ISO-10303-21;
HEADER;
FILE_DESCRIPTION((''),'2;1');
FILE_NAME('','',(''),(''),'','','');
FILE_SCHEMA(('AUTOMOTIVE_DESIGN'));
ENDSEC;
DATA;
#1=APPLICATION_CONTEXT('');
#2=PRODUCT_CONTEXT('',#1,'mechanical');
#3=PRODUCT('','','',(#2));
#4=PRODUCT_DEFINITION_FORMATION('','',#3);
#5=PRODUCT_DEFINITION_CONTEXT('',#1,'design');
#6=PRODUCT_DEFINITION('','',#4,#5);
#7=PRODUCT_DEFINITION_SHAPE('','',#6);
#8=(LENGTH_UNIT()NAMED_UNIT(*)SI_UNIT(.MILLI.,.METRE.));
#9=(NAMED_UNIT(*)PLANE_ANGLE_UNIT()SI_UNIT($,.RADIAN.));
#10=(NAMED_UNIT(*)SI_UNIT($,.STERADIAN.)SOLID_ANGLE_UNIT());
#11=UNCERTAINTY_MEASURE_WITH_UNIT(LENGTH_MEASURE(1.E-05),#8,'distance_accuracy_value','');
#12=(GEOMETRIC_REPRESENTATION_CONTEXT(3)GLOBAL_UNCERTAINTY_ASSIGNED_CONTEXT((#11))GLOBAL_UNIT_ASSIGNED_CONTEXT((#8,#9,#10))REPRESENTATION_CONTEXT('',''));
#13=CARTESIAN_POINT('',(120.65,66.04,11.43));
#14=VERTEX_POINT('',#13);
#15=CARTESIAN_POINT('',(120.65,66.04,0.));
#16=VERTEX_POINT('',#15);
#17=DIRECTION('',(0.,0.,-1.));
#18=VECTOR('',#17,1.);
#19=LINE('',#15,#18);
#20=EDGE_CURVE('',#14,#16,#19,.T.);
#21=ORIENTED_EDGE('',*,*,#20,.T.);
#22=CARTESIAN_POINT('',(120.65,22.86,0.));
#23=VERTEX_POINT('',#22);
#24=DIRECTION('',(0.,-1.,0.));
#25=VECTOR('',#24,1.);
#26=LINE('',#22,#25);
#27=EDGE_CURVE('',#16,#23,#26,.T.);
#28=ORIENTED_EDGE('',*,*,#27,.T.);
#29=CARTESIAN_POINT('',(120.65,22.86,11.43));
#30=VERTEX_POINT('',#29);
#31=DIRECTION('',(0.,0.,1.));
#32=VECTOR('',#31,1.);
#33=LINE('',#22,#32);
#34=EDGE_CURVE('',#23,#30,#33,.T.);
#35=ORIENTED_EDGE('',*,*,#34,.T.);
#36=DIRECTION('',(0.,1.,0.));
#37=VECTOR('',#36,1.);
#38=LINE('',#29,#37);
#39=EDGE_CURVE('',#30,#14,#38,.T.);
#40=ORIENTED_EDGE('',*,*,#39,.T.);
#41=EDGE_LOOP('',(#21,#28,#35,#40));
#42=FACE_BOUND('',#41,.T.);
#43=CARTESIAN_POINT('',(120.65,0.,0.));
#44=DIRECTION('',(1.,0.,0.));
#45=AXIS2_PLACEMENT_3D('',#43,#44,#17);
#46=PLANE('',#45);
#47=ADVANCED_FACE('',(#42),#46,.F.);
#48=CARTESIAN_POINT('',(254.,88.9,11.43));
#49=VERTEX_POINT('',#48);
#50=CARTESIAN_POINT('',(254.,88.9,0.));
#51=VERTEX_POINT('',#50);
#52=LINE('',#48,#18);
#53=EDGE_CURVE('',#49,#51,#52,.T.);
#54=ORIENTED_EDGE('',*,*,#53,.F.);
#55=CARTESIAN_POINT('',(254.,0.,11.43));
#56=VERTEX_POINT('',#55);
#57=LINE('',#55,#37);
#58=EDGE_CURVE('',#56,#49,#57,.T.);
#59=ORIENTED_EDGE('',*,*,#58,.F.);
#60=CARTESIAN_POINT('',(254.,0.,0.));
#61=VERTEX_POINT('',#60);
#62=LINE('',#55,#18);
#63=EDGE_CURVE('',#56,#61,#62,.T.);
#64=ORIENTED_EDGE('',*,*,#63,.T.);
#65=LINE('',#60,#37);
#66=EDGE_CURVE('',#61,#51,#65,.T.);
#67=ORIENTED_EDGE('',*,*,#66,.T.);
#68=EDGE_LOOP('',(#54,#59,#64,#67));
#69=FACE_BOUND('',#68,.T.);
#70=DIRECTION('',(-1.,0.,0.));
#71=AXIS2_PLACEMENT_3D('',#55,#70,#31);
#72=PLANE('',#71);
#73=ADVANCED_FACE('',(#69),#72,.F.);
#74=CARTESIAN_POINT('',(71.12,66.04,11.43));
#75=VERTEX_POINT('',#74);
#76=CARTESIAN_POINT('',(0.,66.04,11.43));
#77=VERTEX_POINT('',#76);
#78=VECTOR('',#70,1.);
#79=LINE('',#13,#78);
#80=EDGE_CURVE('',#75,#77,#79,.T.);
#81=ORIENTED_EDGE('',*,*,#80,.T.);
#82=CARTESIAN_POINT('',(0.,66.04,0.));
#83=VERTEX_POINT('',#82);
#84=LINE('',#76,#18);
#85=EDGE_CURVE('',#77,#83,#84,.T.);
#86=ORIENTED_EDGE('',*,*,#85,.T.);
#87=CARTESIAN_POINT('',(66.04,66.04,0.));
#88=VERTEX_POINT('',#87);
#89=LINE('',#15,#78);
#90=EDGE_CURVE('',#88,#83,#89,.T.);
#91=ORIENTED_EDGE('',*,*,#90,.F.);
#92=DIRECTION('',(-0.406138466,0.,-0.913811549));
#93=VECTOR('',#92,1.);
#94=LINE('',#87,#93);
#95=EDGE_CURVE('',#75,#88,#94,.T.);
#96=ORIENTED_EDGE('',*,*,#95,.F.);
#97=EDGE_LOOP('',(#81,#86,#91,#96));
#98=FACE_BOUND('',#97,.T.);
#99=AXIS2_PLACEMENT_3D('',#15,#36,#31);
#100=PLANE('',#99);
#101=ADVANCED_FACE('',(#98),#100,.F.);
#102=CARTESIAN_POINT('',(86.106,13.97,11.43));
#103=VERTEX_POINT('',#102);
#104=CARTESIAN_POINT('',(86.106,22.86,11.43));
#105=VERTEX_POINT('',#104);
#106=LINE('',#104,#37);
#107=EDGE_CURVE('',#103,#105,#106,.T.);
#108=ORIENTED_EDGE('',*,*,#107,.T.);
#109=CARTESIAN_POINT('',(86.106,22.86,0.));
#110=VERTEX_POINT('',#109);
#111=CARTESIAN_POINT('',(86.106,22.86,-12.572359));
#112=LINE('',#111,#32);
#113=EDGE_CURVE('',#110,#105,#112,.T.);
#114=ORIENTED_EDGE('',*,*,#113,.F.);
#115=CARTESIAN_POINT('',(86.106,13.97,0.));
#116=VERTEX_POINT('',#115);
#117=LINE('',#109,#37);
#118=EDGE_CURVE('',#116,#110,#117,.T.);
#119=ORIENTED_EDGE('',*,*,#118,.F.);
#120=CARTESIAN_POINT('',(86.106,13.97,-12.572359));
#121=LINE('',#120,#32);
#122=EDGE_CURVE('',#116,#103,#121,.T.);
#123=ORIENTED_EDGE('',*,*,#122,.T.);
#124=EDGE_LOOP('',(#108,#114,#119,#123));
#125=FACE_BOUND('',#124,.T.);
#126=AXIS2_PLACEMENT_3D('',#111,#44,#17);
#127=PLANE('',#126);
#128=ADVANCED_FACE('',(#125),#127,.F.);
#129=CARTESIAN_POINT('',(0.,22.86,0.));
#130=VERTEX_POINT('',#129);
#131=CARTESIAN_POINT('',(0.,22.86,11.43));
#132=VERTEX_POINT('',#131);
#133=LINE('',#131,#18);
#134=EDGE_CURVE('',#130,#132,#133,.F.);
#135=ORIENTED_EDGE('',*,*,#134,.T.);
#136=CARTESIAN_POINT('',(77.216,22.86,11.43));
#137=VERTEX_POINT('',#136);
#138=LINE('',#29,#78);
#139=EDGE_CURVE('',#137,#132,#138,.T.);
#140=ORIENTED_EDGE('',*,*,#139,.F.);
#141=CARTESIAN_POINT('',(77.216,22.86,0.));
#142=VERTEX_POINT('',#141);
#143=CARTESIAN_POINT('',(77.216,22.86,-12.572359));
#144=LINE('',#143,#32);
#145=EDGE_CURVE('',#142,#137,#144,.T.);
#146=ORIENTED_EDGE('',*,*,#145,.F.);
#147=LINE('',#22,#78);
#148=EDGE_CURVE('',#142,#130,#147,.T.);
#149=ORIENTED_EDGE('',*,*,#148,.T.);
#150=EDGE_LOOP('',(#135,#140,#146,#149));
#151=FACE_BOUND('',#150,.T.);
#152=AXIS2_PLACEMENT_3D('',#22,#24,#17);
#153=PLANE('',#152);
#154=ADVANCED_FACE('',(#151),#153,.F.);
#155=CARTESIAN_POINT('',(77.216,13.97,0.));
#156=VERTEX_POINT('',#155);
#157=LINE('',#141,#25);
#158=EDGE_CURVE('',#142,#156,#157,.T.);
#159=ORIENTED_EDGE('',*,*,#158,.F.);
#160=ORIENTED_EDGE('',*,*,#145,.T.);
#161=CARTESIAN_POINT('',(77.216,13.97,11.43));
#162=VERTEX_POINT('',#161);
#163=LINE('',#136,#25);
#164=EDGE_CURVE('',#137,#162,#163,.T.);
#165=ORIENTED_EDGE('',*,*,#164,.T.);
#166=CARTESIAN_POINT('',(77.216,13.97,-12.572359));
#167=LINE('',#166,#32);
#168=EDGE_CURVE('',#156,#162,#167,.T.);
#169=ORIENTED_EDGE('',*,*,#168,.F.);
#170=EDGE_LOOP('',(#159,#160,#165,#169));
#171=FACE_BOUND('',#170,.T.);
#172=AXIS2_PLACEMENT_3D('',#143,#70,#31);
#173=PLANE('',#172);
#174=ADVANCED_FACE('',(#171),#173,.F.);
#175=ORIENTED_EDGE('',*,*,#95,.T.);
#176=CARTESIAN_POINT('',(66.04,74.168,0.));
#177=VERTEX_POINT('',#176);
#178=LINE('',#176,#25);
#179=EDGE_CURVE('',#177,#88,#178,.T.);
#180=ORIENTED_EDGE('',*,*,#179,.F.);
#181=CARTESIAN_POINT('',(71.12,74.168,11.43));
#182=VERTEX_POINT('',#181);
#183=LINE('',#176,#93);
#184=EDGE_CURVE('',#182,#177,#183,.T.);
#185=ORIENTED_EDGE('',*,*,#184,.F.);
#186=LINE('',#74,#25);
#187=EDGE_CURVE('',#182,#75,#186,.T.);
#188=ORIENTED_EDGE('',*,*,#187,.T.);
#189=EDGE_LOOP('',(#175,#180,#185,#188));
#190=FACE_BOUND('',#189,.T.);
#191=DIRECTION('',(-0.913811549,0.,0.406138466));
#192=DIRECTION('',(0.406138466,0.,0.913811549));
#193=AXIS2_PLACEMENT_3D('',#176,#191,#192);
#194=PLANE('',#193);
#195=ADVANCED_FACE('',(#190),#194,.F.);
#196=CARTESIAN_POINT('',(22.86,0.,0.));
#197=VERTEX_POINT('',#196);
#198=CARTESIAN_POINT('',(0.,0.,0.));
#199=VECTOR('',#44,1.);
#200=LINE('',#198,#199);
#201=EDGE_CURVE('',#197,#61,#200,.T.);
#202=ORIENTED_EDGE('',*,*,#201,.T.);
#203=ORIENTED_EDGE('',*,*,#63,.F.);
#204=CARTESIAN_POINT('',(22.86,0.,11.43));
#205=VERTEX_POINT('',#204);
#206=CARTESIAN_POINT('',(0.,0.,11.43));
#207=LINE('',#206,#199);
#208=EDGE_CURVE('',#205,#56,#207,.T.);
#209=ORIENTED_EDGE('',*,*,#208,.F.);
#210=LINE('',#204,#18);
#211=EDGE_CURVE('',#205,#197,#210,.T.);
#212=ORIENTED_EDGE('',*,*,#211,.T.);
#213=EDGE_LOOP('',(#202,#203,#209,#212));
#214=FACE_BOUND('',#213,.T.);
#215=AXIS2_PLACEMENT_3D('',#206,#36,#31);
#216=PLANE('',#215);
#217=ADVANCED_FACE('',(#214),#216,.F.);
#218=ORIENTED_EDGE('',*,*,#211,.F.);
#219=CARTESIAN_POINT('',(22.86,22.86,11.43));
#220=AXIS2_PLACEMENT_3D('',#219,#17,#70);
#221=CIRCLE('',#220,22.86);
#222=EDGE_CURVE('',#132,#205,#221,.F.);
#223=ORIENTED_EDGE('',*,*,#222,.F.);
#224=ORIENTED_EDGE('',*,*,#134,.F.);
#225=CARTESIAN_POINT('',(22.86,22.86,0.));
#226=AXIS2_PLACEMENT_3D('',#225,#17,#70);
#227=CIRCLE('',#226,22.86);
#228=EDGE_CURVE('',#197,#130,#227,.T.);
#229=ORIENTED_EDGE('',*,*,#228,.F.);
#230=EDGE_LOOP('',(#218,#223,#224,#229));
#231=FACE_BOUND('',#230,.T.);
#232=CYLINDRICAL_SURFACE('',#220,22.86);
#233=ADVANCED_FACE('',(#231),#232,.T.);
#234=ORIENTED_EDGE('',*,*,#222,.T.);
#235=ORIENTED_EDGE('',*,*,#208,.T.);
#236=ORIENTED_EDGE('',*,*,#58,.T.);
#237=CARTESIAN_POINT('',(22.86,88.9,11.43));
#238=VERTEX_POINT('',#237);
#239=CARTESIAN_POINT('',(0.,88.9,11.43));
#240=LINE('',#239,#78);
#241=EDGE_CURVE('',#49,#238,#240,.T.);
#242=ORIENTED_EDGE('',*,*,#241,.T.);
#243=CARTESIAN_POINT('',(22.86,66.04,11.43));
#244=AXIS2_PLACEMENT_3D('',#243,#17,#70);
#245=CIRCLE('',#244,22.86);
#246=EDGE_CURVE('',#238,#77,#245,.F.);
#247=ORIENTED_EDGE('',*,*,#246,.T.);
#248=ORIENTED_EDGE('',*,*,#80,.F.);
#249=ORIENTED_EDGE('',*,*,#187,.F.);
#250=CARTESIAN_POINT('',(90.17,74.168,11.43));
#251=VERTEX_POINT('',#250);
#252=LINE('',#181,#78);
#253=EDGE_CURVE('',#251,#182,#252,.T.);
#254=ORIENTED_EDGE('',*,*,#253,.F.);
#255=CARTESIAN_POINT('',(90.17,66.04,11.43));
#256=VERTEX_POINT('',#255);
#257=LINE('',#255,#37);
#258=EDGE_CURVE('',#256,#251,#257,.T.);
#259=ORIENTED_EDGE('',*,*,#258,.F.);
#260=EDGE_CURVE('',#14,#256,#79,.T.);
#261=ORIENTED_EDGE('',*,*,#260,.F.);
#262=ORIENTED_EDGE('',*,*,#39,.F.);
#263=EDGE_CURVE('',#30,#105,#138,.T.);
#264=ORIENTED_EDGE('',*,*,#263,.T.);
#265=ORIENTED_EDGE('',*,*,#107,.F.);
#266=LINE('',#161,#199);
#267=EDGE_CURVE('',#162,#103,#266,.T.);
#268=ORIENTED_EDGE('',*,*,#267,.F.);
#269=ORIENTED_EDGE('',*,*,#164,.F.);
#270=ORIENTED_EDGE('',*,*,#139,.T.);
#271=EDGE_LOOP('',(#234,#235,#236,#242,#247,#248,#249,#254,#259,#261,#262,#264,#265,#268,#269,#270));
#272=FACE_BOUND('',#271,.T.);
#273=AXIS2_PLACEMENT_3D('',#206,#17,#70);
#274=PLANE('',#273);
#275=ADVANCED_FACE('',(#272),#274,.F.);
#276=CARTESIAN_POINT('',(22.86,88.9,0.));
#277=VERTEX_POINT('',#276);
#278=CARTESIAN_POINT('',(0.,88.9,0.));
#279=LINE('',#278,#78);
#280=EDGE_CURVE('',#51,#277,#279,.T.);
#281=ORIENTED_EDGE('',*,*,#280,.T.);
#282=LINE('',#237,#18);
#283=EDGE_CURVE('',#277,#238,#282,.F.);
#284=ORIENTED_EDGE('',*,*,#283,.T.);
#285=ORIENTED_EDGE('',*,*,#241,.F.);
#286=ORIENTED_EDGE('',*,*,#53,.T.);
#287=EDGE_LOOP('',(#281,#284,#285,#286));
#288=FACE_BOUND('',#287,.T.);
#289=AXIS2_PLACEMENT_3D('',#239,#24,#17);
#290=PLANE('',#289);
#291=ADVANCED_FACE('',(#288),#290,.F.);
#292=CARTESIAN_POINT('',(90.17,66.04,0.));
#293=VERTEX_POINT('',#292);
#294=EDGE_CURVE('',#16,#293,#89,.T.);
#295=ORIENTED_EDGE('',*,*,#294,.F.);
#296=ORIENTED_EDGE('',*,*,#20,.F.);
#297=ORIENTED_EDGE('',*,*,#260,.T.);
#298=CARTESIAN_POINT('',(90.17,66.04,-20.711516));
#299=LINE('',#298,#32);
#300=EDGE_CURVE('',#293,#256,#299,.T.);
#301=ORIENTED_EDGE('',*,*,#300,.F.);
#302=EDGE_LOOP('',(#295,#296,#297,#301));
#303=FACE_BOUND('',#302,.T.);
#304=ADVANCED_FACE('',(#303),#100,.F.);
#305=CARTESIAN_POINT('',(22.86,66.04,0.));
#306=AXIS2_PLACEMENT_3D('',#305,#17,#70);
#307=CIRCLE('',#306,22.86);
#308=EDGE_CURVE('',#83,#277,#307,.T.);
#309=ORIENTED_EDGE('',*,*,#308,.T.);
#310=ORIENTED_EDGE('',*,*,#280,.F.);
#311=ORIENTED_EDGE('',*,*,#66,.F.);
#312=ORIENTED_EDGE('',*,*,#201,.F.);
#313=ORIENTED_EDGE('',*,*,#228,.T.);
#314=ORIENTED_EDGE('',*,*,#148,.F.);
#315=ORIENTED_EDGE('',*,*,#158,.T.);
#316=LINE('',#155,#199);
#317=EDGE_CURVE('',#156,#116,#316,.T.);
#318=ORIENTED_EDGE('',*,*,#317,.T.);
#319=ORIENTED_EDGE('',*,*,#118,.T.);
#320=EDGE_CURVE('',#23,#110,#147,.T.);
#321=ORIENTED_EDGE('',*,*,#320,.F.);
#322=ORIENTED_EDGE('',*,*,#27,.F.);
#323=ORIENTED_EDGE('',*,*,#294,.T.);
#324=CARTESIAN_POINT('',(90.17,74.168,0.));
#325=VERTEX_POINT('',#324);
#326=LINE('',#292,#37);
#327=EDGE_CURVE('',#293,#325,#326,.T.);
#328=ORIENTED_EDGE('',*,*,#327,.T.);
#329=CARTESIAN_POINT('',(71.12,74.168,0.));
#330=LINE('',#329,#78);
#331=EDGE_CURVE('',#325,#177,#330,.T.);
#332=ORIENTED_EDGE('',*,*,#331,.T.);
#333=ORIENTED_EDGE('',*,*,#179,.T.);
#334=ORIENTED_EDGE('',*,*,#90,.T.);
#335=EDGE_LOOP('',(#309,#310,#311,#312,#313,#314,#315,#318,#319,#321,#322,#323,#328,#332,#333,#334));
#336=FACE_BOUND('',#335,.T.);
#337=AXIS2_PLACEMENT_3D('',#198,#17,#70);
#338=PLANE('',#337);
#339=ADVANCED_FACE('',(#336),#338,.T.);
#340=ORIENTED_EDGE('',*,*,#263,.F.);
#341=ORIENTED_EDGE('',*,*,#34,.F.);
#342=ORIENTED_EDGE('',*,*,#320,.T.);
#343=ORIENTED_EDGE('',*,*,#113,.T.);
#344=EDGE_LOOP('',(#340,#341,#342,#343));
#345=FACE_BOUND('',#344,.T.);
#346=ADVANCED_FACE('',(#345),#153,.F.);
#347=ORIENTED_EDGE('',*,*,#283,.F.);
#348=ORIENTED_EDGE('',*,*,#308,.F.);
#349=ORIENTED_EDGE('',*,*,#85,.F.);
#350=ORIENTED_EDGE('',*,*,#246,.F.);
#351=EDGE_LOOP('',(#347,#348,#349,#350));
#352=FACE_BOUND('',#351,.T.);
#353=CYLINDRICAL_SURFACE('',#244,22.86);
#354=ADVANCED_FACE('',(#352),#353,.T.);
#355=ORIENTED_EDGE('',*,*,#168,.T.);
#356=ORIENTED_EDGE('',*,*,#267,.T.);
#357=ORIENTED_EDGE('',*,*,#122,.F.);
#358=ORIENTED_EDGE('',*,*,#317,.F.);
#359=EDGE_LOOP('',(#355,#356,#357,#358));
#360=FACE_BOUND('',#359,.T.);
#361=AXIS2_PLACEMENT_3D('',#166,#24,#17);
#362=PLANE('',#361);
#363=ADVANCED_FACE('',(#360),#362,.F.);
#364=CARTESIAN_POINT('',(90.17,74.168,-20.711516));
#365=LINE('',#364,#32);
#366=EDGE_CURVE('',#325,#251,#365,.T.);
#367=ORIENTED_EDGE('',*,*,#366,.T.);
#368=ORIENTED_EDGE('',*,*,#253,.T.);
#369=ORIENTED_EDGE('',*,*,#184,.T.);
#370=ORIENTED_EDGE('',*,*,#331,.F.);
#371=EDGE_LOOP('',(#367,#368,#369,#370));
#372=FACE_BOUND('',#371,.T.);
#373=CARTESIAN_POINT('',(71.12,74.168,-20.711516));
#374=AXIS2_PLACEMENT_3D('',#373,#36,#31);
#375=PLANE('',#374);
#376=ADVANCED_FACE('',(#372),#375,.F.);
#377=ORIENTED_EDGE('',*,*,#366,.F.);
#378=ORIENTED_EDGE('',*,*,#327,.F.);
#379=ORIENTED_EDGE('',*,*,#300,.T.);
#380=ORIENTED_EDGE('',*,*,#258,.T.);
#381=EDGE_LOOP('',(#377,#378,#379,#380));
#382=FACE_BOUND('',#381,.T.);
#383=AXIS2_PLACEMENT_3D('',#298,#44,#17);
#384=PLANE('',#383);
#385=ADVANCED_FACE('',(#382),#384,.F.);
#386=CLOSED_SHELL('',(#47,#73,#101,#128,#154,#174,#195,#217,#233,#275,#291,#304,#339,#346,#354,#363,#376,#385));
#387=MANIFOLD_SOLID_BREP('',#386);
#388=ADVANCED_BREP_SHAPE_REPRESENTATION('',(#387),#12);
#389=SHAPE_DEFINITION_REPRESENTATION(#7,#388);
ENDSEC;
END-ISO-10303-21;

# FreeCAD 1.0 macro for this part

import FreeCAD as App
import Part
import Sketcher
from FreeCAD import Vector
Q = App.Units.Quantity


def edges_at(feature, points):
    """Names of the edges that pass closest to the given points."""
    edges = feature.Shape.Edges
    near = lambda p: min(range(len(edges)), key=lambda i: edges[i].distToShape(Part.Vertex(*p))[0])
    return sorted({f"Edge{near(p) + 1}" for p in points})

doc = App.newDocument("Part")
body = doc.addObject("PartDesign::Body", "Body")

# Sketch on XY plane
sketch1 = doc.addObject("Sketcher::SketchObject", "Sketch")
body.addObject(sketch1)
sketch1.AttachmentSupport = (doc.XY_Plane, [""])
sketch1.MapMode = "FlatFace"
sketch1.addGeometry([
    Part.LineSegment(Vector(0, 88.9, 0), Vector(0, 0, 0)),
    Part.LineSegment(Vector(0, 0, 0), Vector(254, 0, 0)),
    Part.LineSegment(Vector(254, 0, 0), Vector(254, 88.9, 0)),
    Part.LineSegment(Vector(254, 88.9, 0), Vector(0, 88.9, 0)),
], False)
sketch1.addConstraint([
    Sketcher.Constraint("Coincident", 0, 2, 1, 1),
    Sketcher.Constraint("Coincident", 1, 2, 2, 1),
    Sketcher.Constraint("Coincident", 2, 2, 3, 1),
    Sketcher.Constraint("Coincident", 3, 2, 0, 1),
    Sketcher.Constraint("Vertical", 0),
    Sketcher.Constraint("Horizontal", 1),
    Sketcher.Constraint("Vertical", 2),
    Sketcher.Constraint("Horizontal", 3),
    Sketcher.Constraint("Coincident", 0, 2, -1, 1),
    Sketcher.Constraint("DistanceX", 1, 1, 1, 2, Q("10 in")),
    Sketcher.Constraint("DistanceY", 0, 2, 0, 1, Q("3.5 in")),
])
pad1 = doc.addObject("PartDesign::Pad", "Pad")
body.addObject(pad1)
pad1.Profile = sketch1
pad1.Length = Q("0.45 in")
doc.recompute()

fillet = doc.addObject("PartDesign::Fillet", "Fillet")
body.addObject(fillet)
fillet.Base = (pad1, edges_at(pad1, [(0, 88.9, 5.715)]))
fillet.Radius = Q("0.9 in")
doc.recompute()

fillet2 = doc.addObject("PartDesign::Fillet", "Fillet001")
body.addObject(fillet2)
fillet2.Base = (fillet, edges_at(fillet, [(0, 0, 5.715)]))
fillet2.Radius = Q("0.9 in")

# Sketch on YZ plane
sketch2 = doc.addObject("Sketcher::SketchObject", "Sketch001")
body.addObject(sketch2)
sketch2.AttachmentSupport = (doc.YZ_Plane, [""])
sketch2.MapMode = "FlatFace"
sketch2.addGeometry([
    Part.LineSegment(Vector(66.04, 0, 0), Vector(22.86, 0, 0)),
    Part.LineSegment(Vector(22.86, 0, 0), Vector(22.86, 11.43, 0)),
    Part.LineSegment(Vector(22.86, 11.43, 0), Vector(66.04, 11.43, 0)),
    Part.LineSegment(Vector(66.04, 11.43, 0), Vector(66.04, 0, 0)),
], False)
sketch2.addConstraint([
    Sketcher.Constraint("Coincident", 0, 2, 1, 1),
    Sketcher.Constraint("Coincident", 1, 2, 2, 1),
    Sketcher.Constraint("Coincident", 2, 2, 3, 1),
    Sketcher.Constraint("Coincident", 3, 2, 0, 1),
    Sketcher.Constraint("Horizontal", 0),
    Sketcher.Constraint("Vertical", 1),
    Sketcher.Constraint("Horizontal", 2),
    Sketcher.Constraint("Vertical", 3),
    Sketcher.Constraint("PointOnObject", 0, 2, -1),
    Sketcher.Constraint("DistanceX", 0, 2, 0, 1, Q("1.7 in")),
    Sketcher.Constraint("DistanceY", 1, 1, 1, 2, Q("0.45 in")),
    Sketcher.Constraint("DistanceX", -1, 1, 0, 2, Q("0.9 in")),
])
pocket1 = doc.addObject("PartDesign::Pocket", "Pocket")
body.addObject(pocket1)
pocket1.Profile = sketch2
pocket1.Length = Q("4.75 in")
pocket1.Reversed = True

# Sketch on XY plane
sketch3 = doc.addObject("Sketcher::SketchObject", "Sketch002")
body.addObject(sketch3)
sketch3.AttachmentSupport = (doc.XY_Plane, [""])
sketch3.MapMode = "FlatFace"
sketch3.AttachmentOffset = App.Placement(Vector(0, 0, 0.45 * 25.4), App.Rotation())
sketch3.addGeometry([
    Part.LineSegment(Vector(77.216, 22.86, 0), Vector(77.216, 13.97, 0)),
    Part.LineSegment(Vector(77.216, 13.97, 0), Vector(86.106, 13.97, 0)),
    Part.LineSegment(Vector(86.106, 13.97, 0), Vector(86.106, 22.86, 0)),
    Part.LineSegment(Vector(86.106, 22.86, 0), Vector(77.216, 22.86, 0)),
], False)
sketch3.addConstraint([
    Sketcher.Constraint("Coincident", 0, 2, 1, 1),
    Sketcher.Constraint("Coincident", 1, 2, 2, 1),
    Sketcher.Constraint("Coincident", 2, 2, 3, 1),
    Sketcher.Constraint("Coincident", 3, 2, 0, 1),
    Sketcher.Constraint("Vertical", 0),
    Sketcher.Constraint("Horizontal", 1),
    Sketcher.Constraint("Vertical", 2),
    Sketcher.Constraint("Horizontal", 3),
    Sketcher.Constraint("Equal", 3, 0),
    Sketcher.Constraint("DistanceX", 1, 1, 1, 2, Q("0.35 in")),
    Sketcher.Constraint("DistanceY", -1, 1, 2, 2, Q("0.9 in")),
    Sketcher.Constraint("DistanceX", -1, 1, 0, 2, Q("3.04 in")),
])
pocket2 = doc.addObject("PartDesign::Pocket", "Pocket001")
body.addObject(pocket2)
pocket2.Profile = sketch3
pocket2.Length = Q("0.45 in")

# Sketch on XY plane
sketch4 = doc.addObject("Sketcher::SketchObject", "Sketch003")
body.addObject(sketch4)
sketch4.AttachmentSupport = (doc.XY_Plane, [""])
sketch4.MapMode = "FlatFace"
sketch4.AttachmentOffset = App.Placement(Vector(0, 0, 0.45 * 25.4), App.Rotation())
sketch4.addGeometry([
    Part.LineSegment(Vector(71.12, 74.168, 0), Vector(71.12, 66.04, 0)),
    Part.LineSegment(Vector(71.12, 66.04, 0), Vector(90.17, 66.04, 0)),
    Part.LineSegment(Vector(90.17, 66.04, 0), Vector(90.17, 74.168, 0)),
    Part.LineSegment(Vector(90.17, 74.168, 0), Vector(71.12, 74.168, 0)),
], False)
sketch4.addConstraint([
    Sketcher.Constraint("Coincident", 0, 2, 1, 1),
    Sketcher.Constraint("Coincident", 1, 2, 2, 1),
    Sketcher.Constraint("Coincident", 2, 2, 3, 1),
    Sketcher.Constraint("Coincident", 3, 2, 0, 1),
    Sketcher.Constraint("Vertical", 0),
    Sketcher.Constraint("Horizontal", 1),
    Sketcher.Constraint("Vertical", 2),
    Sketcher.Constraint("Horizontal", 3),
    Sketcher.Constraint("DistanceX", 1, 1, 1, 2, Q("0.75 in")),
    Sketcher.Constraint("DistanceY", 0, 2, 0, 1, Q("0.32 in")),
    Sketcher.Constraint("DistanceX", -1, 1, 0, 2, Q("2.8 in")),
    Sketcher.Constraint("DistanceY", -1, 1, 0, 2, Q("2.6 in")),
])
pocket3 = doc.addObject("PartDesign::Pocket", "Pocket002")
body.addObject(pocket3)
pocket3.Profile = sketch4
pocket3.Length = Q("0.45 in")

# Sketch on XZ plane
sketch5 = doc.addObject("Sketcher::SketchObject", "Sketch004")
body.addObject(sketch5)
sketch5.AttachmentSupport = (doc.XZ_Plane, [""])
sketch5.MapMode = "FlatFace"
sketch5.AttachmentOffset = App.Placement(Vector(0, 0, -2.6 * 25.4), App.Rotation())
sketch5.addGeometry([
    Part.LineSegment(Vector(71.12, 11.43, 0), Vector(66.04, 0, 0)),
    Part.LineSegment(Vector(66.04, 0, 0), Vector(71.12, 0, 0)),
    Part.LineSegment(Vector(71.12, 0, 0), Vector(71.12, 11.43, 0)),
], False)
sketch5.addConstraint([
    Sketcher.Constraint("Coincident", 0, 2, 1, 1),
    Sketcher.Constraint("Coincident", 1, 2, 2, 1),
    Sketcher.Constraint("Coincident", 2, 2, 0, 1),
    Sketcher.Constraint("Horizontal", 1),
    Sketcher.Constraint("Vertical", 2),
    Sketcher.Constraint("PointOnObject", 0, 2, -1),
    Sketcher.Constraint("DistanceX", 1, 1, 1, 2, Q("0.2 in")),
    Sketcher.Constraint("DistanceY", 2, 1, 2, 2, Q("0.45 in")),
    Sketcher.Constraint("DistanceX", -1, 1, 0, 2, Q("2.6 in")),
])
pocket4 = doc.addObject("PartDesign::Pocket", "Pocket003")
body.addObject(pocket4)
pocket4.Profile = sketch5
pocket4.Length = Q("0.32 in")

doc.recompute()
